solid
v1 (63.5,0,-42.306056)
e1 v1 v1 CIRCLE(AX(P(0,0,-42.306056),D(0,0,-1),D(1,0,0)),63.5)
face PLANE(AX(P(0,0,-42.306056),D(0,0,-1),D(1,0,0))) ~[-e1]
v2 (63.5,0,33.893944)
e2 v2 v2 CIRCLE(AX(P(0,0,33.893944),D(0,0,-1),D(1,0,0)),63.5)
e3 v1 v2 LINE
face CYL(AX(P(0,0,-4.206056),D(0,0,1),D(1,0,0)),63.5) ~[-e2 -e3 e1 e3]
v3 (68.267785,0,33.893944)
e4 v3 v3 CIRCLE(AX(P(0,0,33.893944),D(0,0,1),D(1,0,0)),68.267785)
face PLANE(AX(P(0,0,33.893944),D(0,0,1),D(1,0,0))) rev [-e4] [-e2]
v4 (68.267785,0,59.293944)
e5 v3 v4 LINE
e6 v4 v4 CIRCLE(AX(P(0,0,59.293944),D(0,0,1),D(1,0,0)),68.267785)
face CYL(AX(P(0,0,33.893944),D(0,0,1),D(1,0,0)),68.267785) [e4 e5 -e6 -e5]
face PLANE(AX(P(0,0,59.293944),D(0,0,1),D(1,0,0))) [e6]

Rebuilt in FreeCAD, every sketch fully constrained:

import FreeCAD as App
import Part
import Sketcher
Q = App.Units.Quantity

doc = App.newDocument("Part")
body = doc.addObject("PartDesign::Body", "Body")

sketch1 = body.newObject("Sketcher::SketchObject", "Sketch")
sketch1.AttachmentSupport = (doc.getObject("XZ_Plane"), [""])
sketch1.MapMode = "FlatFace"
sketch1.addGeometry([
    Part.LineSegment(App.Vector(0, 34, 0), App.Vector(0, -42, 0)),
    Part.LineSegment(App.Vector(0, -42, 0), App.Vector(64, -42, 0)),
    Part.LineSegment(App.Vector(64, -42, 0), App.Vector(64, 34, 0)),
    Part.LineSegment(App.Vector(64, 34, 0), App.Vector(0, 34, 0)),
], False)
sketch1.addConstraint([
    Sketcher.Constraint("Coincident", 0, 2, 1, 1),
    Sketcher.Constraint("Coincident", 1, 2, 2, 1),
    Sketcher.Constraint("Coincident", 2, 2, 3, 1),
    Sketcher.Constraint("Coincident", 3, 2, 0, 1),
    Sketcher.Constraint("Vertical", 0),
    Sketcher.Constraint("Horizontal", 1),
    Sketcher.Constraint("Vertical", 2),
    Sketcher.Constraint("Horizontal", 3),
    Sketcher.Constraint("PointOnObject", 0, 2, -2),
    Sketcher.Constraint("DistanceY", 0, 2, 0, 1, Q("3 in")),
    Sketcher.Constraint("DistanceX", 1, 1, 1, 2, Q("2.5 in")),
    Sketcher.Constraint("DistanceY", 0, 2, -1, 1, Q("42.306056 mm")),
])
revolution = body.newObject("PartDesign::Revolution", "Revolution")
revolution.Profile = sketch1
revolution.ReferenceAxis = (sketch1, ["V_Axis"])
revolution.Angle = 360

sketch2 = body.newObject("Sketcher::SketchObject", "Sketch001")
sketch2.AttachmentSupport = (doc.getObject("XZ_Plane"), [""])
sketch2.MapMode = "FlatFace"
sketch2.addGeometry([
    Part.LineSegment(App.Vector(0, 59, 0), App.Vector(0, 34, 0)),
    Part.LineSegment(App.Vector(0, 34, 0), App.Vector(68, 34, 0)),
    Part.LineSegment(App.Vector(68, 34, 0), App.Vector(68, 59, 0)),
    Part.LineSegment(App.Vector(68, 59, 0), App.Vector(0, 59, 0)),
], False)
sketch2.addConstraint([
    Sketcher.Constraint("Coincident", 0, 2, 1, 1),
    Sketcher.Constraint("Coincident", 1, 2, 2, 1),
    Sketcher.Constraint("Coincident", 2, 2, 3, 1),
    Sketcher.Constraint("Coincident", 3, 2, 0, 1),
    Sketcher.Constraint("Vertical", 0),
    Sketcher.Constraint("Horizontal", 1),
    Sketcher.Constraint("Vertical", 2),
    Sketcher.Constraint("Horizontal", 3),
    Sketcher.Constraint("PointOnObject", 0, 2, -2),
    Sketcher.Constraint("DistanceY", 0, 2, 0, 1, Q("1 in")),
    Sketcher.Constraint("DistanceX", 1, 1, 1, 2, Q("68.267785 mm")),
    Sketcher.Constraint("DistanceY", -1, 1, 0, 2, Q("33.893944 mm")),
])
revolution2 = body.newObject("PartDesign::Revolution", "Revolution001")
revolution2.Profile = sketch2
revolution2.ReferenceAxis = (sketch2, ["V_Axis"])
revolution2.Angle = 360

doc.recompute()
